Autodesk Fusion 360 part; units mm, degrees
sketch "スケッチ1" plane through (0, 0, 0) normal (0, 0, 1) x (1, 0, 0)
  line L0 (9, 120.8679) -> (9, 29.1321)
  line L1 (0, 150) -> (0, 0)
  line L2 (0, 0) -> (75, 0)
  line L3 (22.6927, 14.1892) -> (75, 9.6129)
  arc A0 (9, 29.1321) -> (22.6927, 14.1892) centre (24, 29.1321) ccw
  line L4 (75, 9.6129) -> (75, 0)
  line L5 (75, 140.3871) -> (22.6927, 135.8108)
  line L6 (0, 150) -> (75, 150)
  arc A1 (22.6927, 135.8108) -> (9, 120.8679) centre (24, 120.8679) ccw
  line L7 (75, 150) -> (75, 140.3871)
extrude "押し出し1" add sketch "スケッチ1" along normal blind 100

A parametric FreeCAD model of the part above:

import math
import FreeCAD as App
import Part
import Sketcher
Q = App.Units.Quantity

doc = App.newDocument("Part")
body = doc.addObject("PartDesign::Body", "Body")

# Sketch on XY plane
sketch1 = body.newObject("Sketcher::SketchObject", "Sketch")
sketch1.AttachmentSupport = (doc.getObject("XY_Plane"), [""])
sketch1.MapMode = "FlatFace"
sketch1.addGeometry([
    Part.LineSegment(App.Vector(9, 29.1321, 0), App.Vector(9, 120.8679, 0)),  # 0
    Part.ArcOfCircle(Part.Circle(App.Vector(24, 120.8679, 0), App.Vector(0, 0, 1), 14.999976), math.radians(94.999869), math.radians(180)),  # 1
    Part.LineSegment(App.Vector(22.6927, 135.8108, 0), App.Vector(75, 140.3871, 0)),  # 2
    Part.LineSegment(App.Vector(75, 140.3871, 0), App.Vector(75, 150, 0)),  # 3
    Part.LineSegment(App.Vector(75, 150, 0), App.Vector(0, 150, 0)),  # 4
    Part.LineSegment(App.Vector(0, 150, 0), App.Vector(0, 0, 0)),  # 5
    Part.LineSegment(App.Vector(0, 0, 0), App.Vector(75, 0, 0)),  # 6
    Part.LineSegment(App.Vector(75, 0, 0), App.Vector(75, 9.6129, 0)),  # 7
    Part.LineSegment(App.Vector(75, 9.6129, 0), App.Vector(22.6927, 14.1892, 0)),  # 8
    Part.ArcOfCircle(Part.Circle(App.Vector(24, 29.1321, 0), App.Vector(0, 0, 1), 15), math.radians(180), math.radians(265.000131)),  # 9
], False)
sketch1.addConstraint([
    Sketcher.Constraint("Tangent", 0, 2, 1, 2),
    Sketcher.Constraint("Tangent", 1, 1, 2, 1),
    Sketcher.Constraint("Coincident", 2, 2, 3, 1),
    Sketcher.Constraint("Coincident", 3, 2, 4, 1),
    Sketcher.Constraint("Coincident", 4, 2, 5, 1),
    Sketcher.Constraint("Coincident", 5, 2, 6, 1),
    Sketcher.Constraint("Coincident", 6, 2, 7, 1),
    Sketcher.Constraint("Coincident", 7, 2, 8, 1),
    Sketcher.Constraint("Tangent", 8, 2, 9, 2),
    Sketcher.Constraint("Tangent", 9, 1, 0, 1),
    Sketcher.Constraint("Vertical", 0),
    Sketcher.Constraint("Vertical", 3),
    Sketcher.Constraint("Horizontal", 4),
    Sketcher.Constraint("Vertical", 5),
    Sketcher.Constraint("Horizontal", 6),
    Sketcher.Constraint("Vertical", 7),
    Sketcher.Constraint("Coincident", 5, 2, -1, 1),
    Sketcher.Constraint("Equal", 1, 9),
    Sketcher.Constraint("Vertical", 3, 2, 6, 2),
    Sketcher.Constraint("Vertical", 1, 1, 8, 2),
    Sketcher.Constraint("Equal", 3, 7),
    Sketcher.Constraint("Radius", 1, Q("15 mm")),
    Sketcher.Constraint("DistanceX", 4, 2, 4, 1, Q("75 mm")),
    Sketcher.Constraint("DistanceY", 5, 2, 5, 1, Q("150 mm")),
    Sketcher.Constraint("Angle", 2, Q("5 deg")),
    Sketcher.Constraint("DistanceX", -1, 1, 1, 3, Q("24 mm")),
    Sketcher.Constraint("DistanceY", 3, 1, 3, 2, Q("9.613 mm")),
])
pad1 = body.newObject("PartDesign::Pad", "Pad")
pad1.Profile = sketch1
pad1.Length = 100

doc.recompute()
